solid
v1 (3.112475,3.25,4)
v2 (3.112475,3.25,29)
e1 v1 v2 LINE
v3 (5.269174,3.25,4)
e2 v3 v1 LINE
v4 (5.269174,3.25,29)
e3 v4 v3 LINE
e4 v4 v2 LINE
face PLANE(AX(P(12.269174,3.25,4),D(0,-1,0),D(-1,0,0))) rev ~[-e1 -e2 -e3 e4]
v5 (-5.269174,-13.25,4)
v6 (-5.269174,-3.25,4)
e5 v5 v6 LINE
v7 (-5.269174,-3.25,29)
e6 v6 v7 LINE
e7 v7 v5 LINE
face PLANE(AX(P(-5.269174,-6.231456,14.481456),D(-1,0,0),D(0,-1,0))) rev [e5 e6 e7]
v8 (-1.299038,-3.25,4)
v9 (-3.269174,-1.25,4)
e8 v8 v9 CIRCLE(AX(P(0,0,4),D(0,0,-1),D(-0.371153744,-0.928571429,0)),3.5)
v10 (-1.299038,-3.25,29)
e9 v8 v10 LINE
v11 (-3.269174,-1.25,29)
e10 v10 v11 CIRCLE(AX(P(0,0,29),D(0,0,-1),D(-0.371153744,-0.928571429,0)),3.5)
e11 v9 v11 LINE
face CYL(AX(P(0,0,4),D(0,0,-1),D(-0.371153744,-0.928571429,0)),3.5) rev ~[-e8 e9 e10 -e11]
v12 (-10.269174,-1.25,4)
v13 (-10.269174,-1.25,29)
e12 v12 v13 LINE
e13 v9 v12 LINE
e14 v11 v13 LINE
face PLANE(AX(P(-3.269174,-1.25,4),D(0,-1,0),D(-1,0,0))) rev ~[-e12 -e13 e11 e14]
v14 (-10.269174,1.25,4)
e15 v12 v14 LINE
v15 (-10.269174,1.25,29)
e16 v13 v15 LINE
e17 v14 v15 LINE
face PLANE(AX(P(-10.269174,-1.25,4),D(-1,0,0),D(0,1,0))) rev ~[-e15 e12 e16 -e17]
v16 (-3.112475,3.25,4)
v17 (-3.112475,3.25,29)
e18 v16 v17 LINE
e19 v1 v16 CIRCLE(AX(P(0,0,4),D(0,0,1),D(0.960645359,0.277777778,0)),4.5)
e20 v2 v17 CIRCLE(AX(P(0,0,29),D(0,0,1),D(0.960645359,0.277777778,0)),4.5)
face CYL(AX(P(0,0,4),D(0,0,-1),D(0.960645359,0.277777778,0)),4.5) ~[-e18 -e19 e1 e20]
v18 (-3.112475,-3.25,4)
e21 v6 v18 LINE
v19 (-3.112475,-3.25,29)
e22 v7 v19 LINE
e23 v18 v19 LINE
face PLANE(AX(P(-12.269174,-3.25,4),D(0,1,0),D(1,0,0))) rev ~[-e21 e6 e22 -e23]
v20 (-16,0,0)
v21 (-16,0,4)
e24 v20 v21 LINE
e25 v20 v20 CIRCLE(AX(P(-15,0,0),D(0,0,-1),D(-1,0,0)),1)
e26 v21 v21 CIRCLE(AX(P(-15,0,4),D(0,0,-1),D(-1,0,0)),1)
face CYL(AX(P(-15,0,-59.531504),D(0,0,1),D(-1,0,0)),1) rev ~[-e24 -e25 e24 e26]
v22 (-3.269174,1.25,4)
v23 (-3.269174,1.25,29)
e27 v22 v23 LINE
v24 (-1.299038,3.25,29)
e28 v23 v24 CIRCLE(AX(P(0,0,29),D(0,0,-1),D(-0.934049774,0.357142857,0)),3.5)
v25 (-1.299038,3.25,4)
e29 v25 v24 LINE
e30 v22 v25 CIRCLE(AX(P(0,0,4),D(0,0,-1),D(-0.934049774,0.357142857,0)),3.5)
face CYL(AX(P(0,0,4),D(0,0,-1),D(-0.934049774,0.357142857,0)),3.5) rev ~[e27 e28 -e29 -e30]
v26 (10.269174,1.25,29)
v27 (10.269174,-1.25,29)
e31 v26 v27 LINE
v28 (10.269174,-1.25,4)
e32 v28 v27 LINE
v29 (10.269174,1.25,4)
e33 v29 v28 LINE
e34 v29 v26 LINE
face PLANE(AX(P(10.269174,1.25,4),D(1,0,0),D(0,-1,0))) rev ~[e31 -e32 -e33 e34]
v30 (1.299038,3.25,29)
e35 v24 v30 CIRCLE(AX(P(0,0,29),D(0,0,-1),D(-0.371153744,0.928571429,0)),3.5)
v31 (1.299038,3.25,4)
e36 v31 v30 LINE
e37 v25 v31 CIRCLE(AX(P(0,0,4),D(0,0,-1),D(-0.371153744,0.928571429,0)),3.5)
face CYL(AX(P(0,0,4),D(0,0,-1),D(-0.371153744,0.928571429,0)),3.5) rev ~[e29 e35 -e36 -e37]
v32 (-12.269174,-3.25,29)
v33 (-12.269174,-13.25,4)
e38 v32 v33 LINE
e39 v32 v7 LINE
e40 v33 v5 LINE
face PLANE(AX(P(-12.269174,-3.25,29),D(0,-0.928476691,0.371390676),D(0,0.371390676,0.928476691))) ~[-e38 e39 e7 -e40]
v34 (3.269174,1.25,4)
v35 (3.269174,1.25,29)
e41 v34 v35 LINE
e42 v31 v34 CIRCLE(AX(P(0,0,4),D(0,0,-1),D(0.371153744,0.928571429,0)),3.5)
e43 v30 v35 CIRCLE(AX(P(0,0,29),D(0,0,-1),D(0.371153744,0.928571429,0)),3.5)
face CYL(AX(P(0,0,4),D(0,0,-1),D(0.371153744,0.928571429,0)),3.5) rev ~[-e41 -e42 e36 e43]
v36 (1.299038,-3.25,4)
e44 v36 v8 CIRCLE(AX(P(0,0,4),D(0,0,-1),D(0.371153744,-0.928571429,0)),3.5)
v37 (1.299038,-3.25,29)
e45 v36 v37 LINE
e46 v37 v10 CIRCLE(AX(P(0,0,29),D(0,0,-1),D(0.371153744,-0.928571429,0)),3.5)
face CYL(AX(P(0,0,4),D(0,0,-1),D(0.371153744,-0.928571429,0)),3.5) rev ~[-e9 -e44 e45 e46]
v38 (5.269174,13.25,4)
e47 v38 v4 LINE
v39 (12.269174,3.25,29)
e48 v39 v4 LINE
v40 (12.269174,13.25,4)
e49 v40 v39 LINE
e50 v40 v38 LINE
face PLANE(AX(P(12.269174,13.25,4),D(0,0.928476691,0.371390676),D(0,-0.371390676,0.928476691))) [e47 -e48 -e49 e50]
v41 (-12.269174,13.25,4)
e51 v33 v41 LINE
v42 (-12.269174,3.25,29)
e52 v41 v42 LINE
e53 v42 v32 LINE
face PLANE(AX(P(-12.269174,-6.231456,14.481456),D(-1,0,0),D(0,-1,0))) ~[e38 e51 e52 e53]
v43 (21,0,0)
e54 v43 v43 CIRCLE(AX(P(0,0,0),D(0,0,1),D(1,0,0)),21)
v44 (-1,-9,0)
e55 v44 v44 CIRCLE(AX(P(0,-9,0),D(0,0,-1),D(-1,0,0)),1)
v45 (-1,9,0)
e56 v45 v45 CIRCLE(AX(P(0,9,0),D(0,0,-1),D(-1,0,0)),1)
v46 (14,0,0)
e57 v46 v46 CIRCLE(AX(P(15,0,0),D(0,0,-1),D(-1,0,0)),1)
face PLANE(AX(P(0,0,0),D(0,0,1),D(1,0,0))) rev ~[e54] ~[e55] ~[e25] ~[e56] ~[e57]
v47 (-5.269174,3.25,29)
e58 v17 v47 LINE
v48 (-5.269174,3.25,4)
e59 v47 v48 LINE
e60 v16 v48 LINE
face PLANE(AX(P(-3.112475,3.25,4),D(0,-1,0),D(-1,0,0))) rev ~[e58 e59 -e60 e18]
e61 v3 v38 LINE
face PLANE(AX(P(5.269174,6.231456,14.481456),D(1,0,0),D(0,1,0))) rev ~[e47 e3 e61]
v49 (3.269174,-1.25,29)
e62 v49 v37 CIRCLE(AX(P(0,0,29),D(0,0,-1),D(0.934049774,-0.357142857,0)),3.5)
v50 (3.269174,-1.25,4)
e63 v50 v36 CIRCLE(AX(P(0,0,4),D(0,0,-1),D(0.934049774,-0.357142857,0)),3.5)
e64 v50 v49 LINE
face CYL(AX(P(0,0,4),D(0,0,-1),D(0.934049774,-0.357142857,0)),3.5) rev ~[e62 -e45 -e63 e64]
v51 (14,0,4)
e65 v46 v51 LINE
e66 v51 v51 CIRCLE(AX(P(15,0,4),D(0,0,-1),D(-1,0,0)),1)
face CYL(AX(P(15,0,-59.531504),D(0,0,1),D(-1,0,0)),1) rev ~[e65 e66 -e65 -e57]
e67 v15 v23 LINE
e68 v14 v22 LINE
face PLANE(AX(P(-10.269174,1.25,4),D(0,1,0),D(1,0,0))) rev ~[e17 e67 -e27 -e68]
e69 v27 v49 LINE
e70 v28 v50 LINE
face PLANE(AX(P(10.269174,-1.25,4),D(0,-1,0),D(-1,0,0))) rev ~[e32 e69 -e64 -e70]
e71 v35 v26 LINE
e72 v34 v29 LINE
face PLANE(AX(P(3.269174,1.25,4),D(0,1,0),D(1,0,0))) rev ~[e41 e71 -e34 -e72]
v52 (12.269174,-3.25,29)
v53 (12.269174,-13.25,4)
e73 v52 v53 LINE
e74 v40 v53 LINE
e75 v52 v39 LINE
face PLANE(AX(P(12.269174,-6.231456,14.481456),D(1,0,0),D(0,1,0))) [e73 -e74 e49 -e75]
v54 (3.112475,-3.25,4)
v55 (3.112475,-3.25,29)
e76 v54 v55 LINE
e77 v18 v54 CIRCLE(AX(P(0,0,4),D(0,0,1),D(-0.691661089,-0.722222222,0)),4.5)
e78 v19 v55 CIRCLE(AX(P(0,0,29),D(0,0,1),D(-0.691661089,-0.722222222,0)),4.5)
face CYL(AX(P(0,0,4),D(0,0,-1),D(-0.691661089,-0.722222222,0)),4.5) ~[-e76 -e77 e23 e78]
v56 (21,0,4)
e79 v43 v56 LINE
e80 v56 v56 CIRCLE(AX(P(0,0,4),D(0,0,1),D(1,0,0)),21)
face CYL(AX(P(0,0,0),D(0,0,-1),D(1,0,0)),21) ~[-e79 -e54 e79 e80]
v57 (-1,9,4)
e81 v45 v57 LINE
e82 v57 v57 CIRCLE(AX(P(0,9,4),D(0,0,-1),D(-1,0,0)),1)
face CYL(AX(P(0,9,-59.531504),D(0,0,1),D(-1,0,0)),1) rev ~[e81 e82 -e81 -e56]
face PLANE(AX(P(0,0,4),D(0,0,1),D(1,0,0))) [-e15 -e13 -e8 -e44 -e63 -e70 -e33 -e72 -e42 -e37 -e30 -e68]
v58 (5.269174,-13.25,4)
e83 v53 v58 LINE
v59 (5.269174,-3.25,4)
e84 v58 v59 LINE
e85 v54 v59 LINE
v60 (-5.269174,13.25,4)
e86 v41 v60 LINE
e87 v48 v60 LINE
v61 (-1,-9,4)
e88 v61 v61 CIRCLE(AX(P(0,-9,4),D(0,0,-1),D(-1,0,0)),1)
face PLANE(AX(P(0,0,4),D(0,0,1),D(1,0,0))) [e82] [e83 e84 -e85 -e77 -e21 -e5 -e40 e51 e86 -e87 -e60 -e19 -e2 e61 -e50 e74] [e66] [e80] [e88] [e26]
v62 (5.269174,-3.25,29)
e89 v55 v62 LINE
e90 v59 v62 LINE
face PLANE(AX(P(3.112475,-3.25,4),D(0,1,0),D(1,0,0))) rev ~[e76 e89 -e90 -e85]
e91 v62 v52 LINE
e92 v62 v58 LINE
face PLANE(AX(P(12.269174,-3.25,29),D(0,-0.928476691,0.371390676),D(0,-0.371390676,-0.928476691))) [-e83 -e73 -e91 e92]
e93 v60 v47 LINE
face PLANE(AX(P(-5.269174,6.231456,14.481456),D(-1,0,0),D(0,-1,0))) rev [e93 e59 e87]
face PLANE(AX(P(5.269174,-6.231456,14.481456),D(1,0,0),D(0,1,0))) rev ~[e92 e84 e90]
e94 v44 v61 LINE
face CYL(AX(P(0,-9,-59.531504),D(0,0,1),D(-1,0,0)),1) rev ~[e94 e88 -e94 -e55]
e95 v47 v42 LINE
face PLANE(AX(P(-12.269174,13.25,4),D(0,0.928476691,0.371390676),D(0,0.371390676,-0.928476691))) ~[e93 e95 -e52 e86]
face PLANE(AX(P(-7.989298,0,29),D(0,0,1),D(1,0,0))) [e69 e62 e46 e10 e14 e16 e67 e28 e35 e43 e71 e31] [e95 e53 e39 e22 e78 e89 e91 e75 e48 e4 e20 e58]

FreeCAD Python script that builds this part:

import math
import FreeCAD as App
import Part
import Sketcher
from FreeCAD import Vector
Q = App.Units.Quantity


def add_polygon(sketch, points):
    """Adds a closed chain of lines whose ends are joined by coincident constraints."""
    first, n = sketch.GeometryCount, len(points)
    for a, b in zip(points, points[1:] + points[:1]):
        sketch.addGeometry(Part.LineSegment(App.Vector(*a, 0), App.Vector(*b, 0)), False)
    for i in range(n):
        sketch.addConstraint(Sketcher.Constraint("Coincident", first + i, 2, first + (i + 1) % n, 1))

doc = App.newDocument("Part")
params = doc.addObject("Spreadsheet::Sheet", "Params")
for row, (alias, value) in enumerate([
    ("sketch1_diameter", "42 mm"),
    ("pad1_length", "4 mm"),
    ("sketch2_diameter", "2 mm"),
    ("hole_diameter", "2 mm"),
    ("sketch3_radius", "4.5 mm"),
    ("sketch3_radius2", "3.5 mm"),
    ("sketch3_width", "7 mm"),
    ("sketch3_height", "6.5 mm"),
    ("sketch3_height2", "2.5 mm"),
    ("pad2_length", "25 mm"),
    ("sketch4_width", "10 mm"),
    ("sketch4_height", "25 mm"),
    ("pad3_length", "7 mm"),
], start=1):
    params.set(f"A{row}", alias)
    params.set(f"B{row}", "=" + value)
    params.setAlias(f"B{row}", alias)

body = doc.addObject("PartDesign::Body", "Body")

# Sketch on XY plane
sketch1 = body.newObject("Sketcher::SketchObject", "Sketch")
sketch1.AttachmentSupport = (doc.getObject("XY_Plane"), [""])
sketch1.MapMode = "FlatFace"
sketch1.addGeometry(Part.Circle(Vector(0, 0, 0), Vector(0, 0, 1), 21), False)
sketch1.addConstraint(Sketcher.Constraint("Coincident", 0, 3, -1, 1))
sketch1.addConstraint(Sketcher.Constraint("Diameter", 0, Q("42 mm")))
sketch1.setExpression("Constraints[1]", "Params.sketch1_diameter")
pad1 = body.newObject("PartDesign::Pad", "Pad")
pad1.Profile = sketch1
pad1.setExpression("Length", "Params.pad1_length")

# Sketch on XY plane
sketch2 = body.newObject("Sketcher::SketchObject", "Sketch001")
sketch2.AttachmentSupport = (doc.getObject("XY_Plane"), [""])
sketch2.MapMode = "FlatFace"
sketch2.addGeometry(Part.Circle(Vector(-15, 0, 0), Vector(0, 0, 1), 1), False)
sketch2.addGeometry(Part.Circle(Vector(0, -9, 0), Vector(0, 0, 1), 1), False)
sketch2.addGeometry(Part.Circle(Vector(0, 9, 0), Vector(0, 0, 1), 1), False)
sketch2.addGeometry(Part.Circle(Vector(15, 0, 0), Vector(0, 0, 1), 1), False)
sketch2.addConstraint(Sketcher.Constraint("Equal", 0, 1))
sketch2.addConstraint(Sketcher.Constraint("Equal", 1, 2))
sketch2.addConstraint(Sketcher.Constraint("Equal", 2, 3))
sketch2.addConstraint(Sketcher.Constraint("Symmetric", 1, 3, 2, 3, -1, 1))
sketch2.addConstraint(Sketcher.Constraint("Symmetric", 0, 3, 3, 3, -1, 1))
sketch2.addConstraint(Sketcher.Constraint("PointOnObject", 0, 3, -1))
sketch2.addConstraint(Sketcher.Constraint("PointOnObject", 1, 3, -2))
sketch2.addConstraint(Sketcher.Constraint("Diameter", 0, Q("2 mm")))
sketch2.addConstraint(Sketcher.Constraint("DistanceX", 0, 3, -1, 1, Q("15 mm")))
sketch2.addConstraint(Sketcher.Constraint("DistanceY", 1, 3, -1, 1, Q("9 mm")))
sketch2.setExpression("Constraints[7]", "Params.sketch2_diameter")
doc.recompute()
hole = body.newObject("PartDesign::Hole", "Hole")
hole.Profile = sketch2
hole.ThreadType = "None"
hole.setExpression("Diameter", "Params.hole_diameter")
hole.DepthType = "ThroughAll"
hole.Reversed = True

# Sketch on XY plane
sketch3 = body.newObject("Sketcher::SketchObject", "Sketch002")
sketch3.AttachmentSupport = (doc.getObject("XY_Plane"), [""])
sketch3.MapMode = "FlatFace"
sketch3.AttachmentOffset = App.Placement(Vector(0, 0, 4), App.Rotation())
sketch3.addGeometry(Part.LineSegment(Vector(-3.1, 3.2, 0), Vector(-12.3, 3.2, 0)), False)
sketch3.addGeometry(Part.LineSegment(Vector(-12.3, 3.2, 0), Vector(-12.3, -3.2, 0)), False)
sketch3.addGeometry(Part.LineSegment(Vector(-12.3, -3.2, 0), Vector(-3.1, -3.2, 0)), False)
sketch3.addGeometry(Part.ArcOfCircle(Part.Circle(Vector(0, 0, 0), Vector(0, 0, 1), 4.5), math.radians(-134), math.radians(-46)), False)
sketch3.addGeometry(Part.LineSegment(Vector(3.1, -3.2, 0), Vector(12.3, -3.2, 0)), False)
sketch3.addGeometry(Part.LineSegment(Vector(12.3, -3.2, 0), Vector(12.3, 3.2, 0)), False)
sketch3.addGeometry(Part.LineSegment(Vector(12.3, 3.2, 0), Vector(3.1, 3.2, 0)), False)
sketch3.addGeometry(Part.ArcOfCircle(Part.Circle(Vector(0, 0, 0), Vector(0, 0, 1), 4.5), math.radians(46), math.radians(134)), False)
sketch3.addGeometry(Part.ArcOfCircle(Part.Circle(Vector(0, 0, 0), Vector(0, 0, 1), 3.5), math.radians(-68), math.radians(-21)), False)
sketch3.addGeometry(Part.ArcOfCircle(Part.Circle(Vector(0, 0, 0), Vector(0, 0, 1), 3.5), math.radians(-112), math.radians(-68)), False)
sketch3.addGeometry(Part.ArcOfCircle(Part.Circle(Vector(0, 0, 0), Vector(0, 0, 1), 3.5), math.radians(-159), math.radians(-112)), False)
sketch3.addGeometry(Part.LineSegment(Vector(-3.3, -1.2, 0), Vector(-10.3, -1.2, 0)), False)
sketch3.addGeometry(Part.LineSegment(Vector(-10.3, -1.2, 0), Vector(-10.3, 1.2, 0)), False)
sketch3.addGeometry(Part.LineSegment(Vector(-10.3, 1.2, 0), Vector(-3.3, 1.2, 0)), False)
sketch3.addGeometry(Part.ArcOfCircle(Part.Circle(Vector(0, 0, 0), Vector(0, 0, 1), 3.5), math.radians(112), math.radians(159)), False)
sketch3.addGeometry(Part.ArcOfCircle(Part.Circle(Vector(0, 0, 0), Vector(0, 0, 1), 3.5), math.radians(68), math.radians(112)), False)
sketch3.addGeometry(Part.ArcOfCircle(Part.Circle(Vector(0, 0, 0), Vector(0, 0, 1), 3.5), math.radians(21), math.radians(68)), False)
sketch3.addGeometry(Part.LineSegment(Vector(3.3, 1.2, 0), Vector(10.3, 1.2, 0)), False)
sketch3.addGeometry(Part.LineSegment(Vector(10.3, 1.2, 0), Vector(10.3, -1.2, 0)), False)
sketch3.addGeometry(Part.LineSegment(Vector(10.3, -1.2, 0), Vector(3.3, -1.2, 0)), False)
sketch3.addConstraint(Sketcher.Constraint("Coincident", 0, 2, 1, 1))
sketch3.addConstraint(Sketcher.Constraint("Coincident", 1, 2, 2, 1))
sketch3.addConstraint(Sketcher.Constraint("Coincident", 2, 2, 3, 1))
sketch3.addConstraint(Sketcher.Constraint("Coincident", 3, 2, 4, 1))
sketch3.addConstraint(Sketcher.Constraint("Coincident", 4, 2, 5, 1))
sketch3.addConstraint(Sketcher.Constraint("Coincident", 5, 2, 6, 1))
sketch3.addConstraint(Sketcher.Constraint("Coincident", 6, 2, 7, 1))
sketch3.addConstraint(Sketcher.Constraint("Coincident", 7, 2, 0, 1))
sketch3.addConstraint(Sketcher.Constraint("Tangent", 8, 1, 9, 2))
sketch3.addConstraint(Sketcher.Constraint("Tangent", 9, 1, 10, 2))
sketch3.addConstraint(Sketcher.Constraint("Coincident", 10, 1, 11, 1))
sketch3.addConstraint(Sketcher.Constraint("Coincident", 11, 2, 12, 1))
sketch3.addConstraint(Sketcher.Constraint("Coincident", 12, 2, 13, 1))
sketch3.addConstraint(Sketcher.Constraint("Coincident", 13, 2, 14, 2))
sketch3.addConstraint(Sketcher.Constraint("Tangent", 14, 1, 15, 2))
sketch3.addConstraint(Sketcher.Constraint("Tangent", 15, 1, 16, 2))
sketch3.addConstraint(Sketcher.Constraint("Coincident", 16, 1, 17, 1))
sketch3.addConstraint(Sketcher.Constraint("Coincident", 17, 2, 18, 1))
sketch3.addConstraint(Sketcher.Constraint("Coincident", 18, 2, 19, 1))
sketch3.addConstraint(Sketcher.Constraint("Coincident", 19, 2, 8, 2))
sketch3.addConstraint(Sketcher.Constraint("Horizontal", 0))
sketch3.addConstraint(Sketcher.Constraint("Vertical", 1))
sketch3.addConstraint(Sketcher.Constraint("Horizontal", 2))
sketch3.addConstraint(Sketcher.Constraint("Horizontal", 4))
sketch3.addConstraint(Sketcher.Constraint("Vertical", 5))
sketch3.addConstraint(Sketcher.Constraint("Horizontal", 6))
sketch3.addConstraint(Sketcher.Constraint("Horizontal", 11))
sketch3.addConstraint(Sketcher.Constraint("Vertical", 12))
sketch3.addConstraint(Sketcher.Constraint("Horizontal", 13))
sketch3.addConstraint(Sketcher.Constraint("Horizontal", 17))
sketch3.addConstraint(Sketcher.Constraint("Vertical", 18))
sketch3.addConstraint(Sketcher.Constraint("Horizontal", 19))
sketch3.addConstraint(Sketcher.Constraint("Coincident", 3, 3, -1, 1))
sketch3.addConstraint(Sketcher.Constraint("Coincident", 7, 3, -1, 1))
sketch3.addConstraint(Sketcher.Constraint("Coincident", 8, 3, -1, 1))
sketch3.addConstraint(Sketcher.Constraint("Coincident", 10, 3, -1, 1))
sketch3.addConstraint(Sketcher.Constraint("Coincident", 14, 3, -1, 1))
sketch3.addConstraint(Sketcher.Constraint("Coincident", 16, 3, -1, 1))
sketch3.addConstraint(Sketcher.Constraint("Equal", 3, 7))
sketch3.addConstraint(Sketcher.Constraint("Equal", 10, 14))
sketch3.addConstraint(Sketcher.Constraint("Symmetric", 0, 2, 4, 2, -1, 1))
sketch3.addConstraint(Sketcher.Constraint("Symmetric", 11, 2, 17, 2, -1, 1))
sketch3.addConstraint(Sketcher.Constraint("Horizontal", 2, 2, 3, 2))
sketch3.addConstraint(Sketcher.Constraint("Horizontal", 0, 2, 5, 2))
sketch3.addConstraint(Sketcher.Constraint("Horizontal", 4, 2, 8, 1))
sketch3.addConstraint(Sketcher.Constraint("Horizontal", 8, 1, 9, 1))
sketch3.addConstraint(Sketcher.Constraint("Horizontal", 7, 2, 14, 1))
sketch3.addConstraint(Sketcher.Constraint("Horizontal", 14, 1, 15, 1))
sketch3.addConstraint(Sketcher.Constraint("Horizontal", 13, 2, 16, 1))
sketch3.addConstraint(Sketcher.Constraint("Horizontal", 11, 2, 18, 2))
sketch3.addConstraint(Sketcher.Constraint("Radius", 3, Q("4.5 mm")))
sketch3.addConstraint(Sketcher.Constraint("Radius", 8, Q("3.5 mm")))
sketch3.addConstraint(Sketcher.Constraint("DistanceX", 11, 2, 11, 1, Q("7 mm")))
sketch3.addConstraint(Sketcher.Constraint("DistanceY", 1, 2, 1, 1, Q("6.5 mm")))
sketch3.addConstraint(Sketcher.Constraint("DistanceY", 12, 1, 12, 2, Q("2.5 mm")))
sketch3.addConstraint(Sketcher.Constraint("DistanceX", 1, 2, 11, 2, Q("2 mm")))
sketch3.setExpression("Constraints[50]", "Params.sketch3_radius")
sketch3.setExpression("Constraints[51]", "Params.sketch3_radius2")
sketch3.setExpression("Constraints[52]", "Params.sketch3_width")
sketch3.setExpression("Constraints[53]", "Params.sketch3_height")
sketch3.setExpression("Constraints[54]", "Params.sketch3_height2")
pad2 = body.newObject("PartDesign::Pad", "Pad001")
pad2.Profile = sketch3
pad2.setExpression("Length", "Params.pad2_length")

# Sketch on YZ plane
sketch4 = body.newObject("Sketcher::SketchObject", "Sketch003")
sketch4.AttachmentSupport = (doc.getObject("YZ_Plane"), [""])
sketch4.MapMode = "FlatFace"
sketch4.AttachmentOffset = App.Placement(Vector(0, 0, 12.269174), App.Rotation())
add_polygon(sketch4, [(-3, 4), (-3, 29), (-13, 4)])  # lines 0-2
add_polygon(sketch4, [(13, 4), (3, 29), (3, 4)])  # lines 3-5
sketch4.addConstraint(Sketcher.Constraint("Vertical", 0))
sketch4.addConstraint(Sketcher.Constraint("Horizontal", 2))
sketch4.addConstraint(Sketcher.Constraint("Vertical", 4))
sketch4.addConstraint(Sketcher.Constraint("Horizontal", 5))
sketch4.addConstraint(Sketcher.Constraint("Symmetric", 0, 2, 3, 2, -2))
sketch4.addConstraint(Sketcher.Constraint("Symmetric", 1, 2, 5, 2, -2))
sketch4.addConstraint(Sketcher.Constraint("DistanceX", 2, 1, 2, 2, Q("10 mm")))
sketch4.addConstraint(Sketcher.Constraint("DistanceY", 0, 1, 0, 2, Q("25 mm")))
sketch4.addConstraint(Sketcher.Constraint("DistanceY", -1, 1, 0, 2, Q("29 mm")))
sketch4.addConstraint(Sketcher.Constraint("DistanceX", 0, 2, 3, 2, Q("6.5 mm")))
sketch4.setExpression("Constraints[12]", "Params.sketch4_width")
sketch4.setExpression("Constraints[13]", "Params.sketch4_height")
pad3 = body.newObject("PartDesign::Pad", "Pad002")
pad3.Profile = sketch4
pad3.setExpression("Length", "Params.pad3_length")
pad3.Reversed = True
body2 = doc.addObject("PartDesign::Body", "Body001")
doc.recompute()

body2.BaseFeature = body
doc.recompute()

mirroring = doc.addObject("Part::Mirroring", "Mirroring")
mirroring.Source = body
mirroring.Base = Vector(0, 0, 0)
mirroring.Normal = Vector(1, 0, 0)
body3 = doc.addObject("PartDesign::Body", "Body002")
body3.BaseFeature = mirroring
boolean = body2.newObject("PartDesign::Boolean", "Boolean")
boolean.Type = "Fuse"
boolean.addObjects([body3])
doc.recompute()
mirroring.Visibility = False

doc.recompute()
